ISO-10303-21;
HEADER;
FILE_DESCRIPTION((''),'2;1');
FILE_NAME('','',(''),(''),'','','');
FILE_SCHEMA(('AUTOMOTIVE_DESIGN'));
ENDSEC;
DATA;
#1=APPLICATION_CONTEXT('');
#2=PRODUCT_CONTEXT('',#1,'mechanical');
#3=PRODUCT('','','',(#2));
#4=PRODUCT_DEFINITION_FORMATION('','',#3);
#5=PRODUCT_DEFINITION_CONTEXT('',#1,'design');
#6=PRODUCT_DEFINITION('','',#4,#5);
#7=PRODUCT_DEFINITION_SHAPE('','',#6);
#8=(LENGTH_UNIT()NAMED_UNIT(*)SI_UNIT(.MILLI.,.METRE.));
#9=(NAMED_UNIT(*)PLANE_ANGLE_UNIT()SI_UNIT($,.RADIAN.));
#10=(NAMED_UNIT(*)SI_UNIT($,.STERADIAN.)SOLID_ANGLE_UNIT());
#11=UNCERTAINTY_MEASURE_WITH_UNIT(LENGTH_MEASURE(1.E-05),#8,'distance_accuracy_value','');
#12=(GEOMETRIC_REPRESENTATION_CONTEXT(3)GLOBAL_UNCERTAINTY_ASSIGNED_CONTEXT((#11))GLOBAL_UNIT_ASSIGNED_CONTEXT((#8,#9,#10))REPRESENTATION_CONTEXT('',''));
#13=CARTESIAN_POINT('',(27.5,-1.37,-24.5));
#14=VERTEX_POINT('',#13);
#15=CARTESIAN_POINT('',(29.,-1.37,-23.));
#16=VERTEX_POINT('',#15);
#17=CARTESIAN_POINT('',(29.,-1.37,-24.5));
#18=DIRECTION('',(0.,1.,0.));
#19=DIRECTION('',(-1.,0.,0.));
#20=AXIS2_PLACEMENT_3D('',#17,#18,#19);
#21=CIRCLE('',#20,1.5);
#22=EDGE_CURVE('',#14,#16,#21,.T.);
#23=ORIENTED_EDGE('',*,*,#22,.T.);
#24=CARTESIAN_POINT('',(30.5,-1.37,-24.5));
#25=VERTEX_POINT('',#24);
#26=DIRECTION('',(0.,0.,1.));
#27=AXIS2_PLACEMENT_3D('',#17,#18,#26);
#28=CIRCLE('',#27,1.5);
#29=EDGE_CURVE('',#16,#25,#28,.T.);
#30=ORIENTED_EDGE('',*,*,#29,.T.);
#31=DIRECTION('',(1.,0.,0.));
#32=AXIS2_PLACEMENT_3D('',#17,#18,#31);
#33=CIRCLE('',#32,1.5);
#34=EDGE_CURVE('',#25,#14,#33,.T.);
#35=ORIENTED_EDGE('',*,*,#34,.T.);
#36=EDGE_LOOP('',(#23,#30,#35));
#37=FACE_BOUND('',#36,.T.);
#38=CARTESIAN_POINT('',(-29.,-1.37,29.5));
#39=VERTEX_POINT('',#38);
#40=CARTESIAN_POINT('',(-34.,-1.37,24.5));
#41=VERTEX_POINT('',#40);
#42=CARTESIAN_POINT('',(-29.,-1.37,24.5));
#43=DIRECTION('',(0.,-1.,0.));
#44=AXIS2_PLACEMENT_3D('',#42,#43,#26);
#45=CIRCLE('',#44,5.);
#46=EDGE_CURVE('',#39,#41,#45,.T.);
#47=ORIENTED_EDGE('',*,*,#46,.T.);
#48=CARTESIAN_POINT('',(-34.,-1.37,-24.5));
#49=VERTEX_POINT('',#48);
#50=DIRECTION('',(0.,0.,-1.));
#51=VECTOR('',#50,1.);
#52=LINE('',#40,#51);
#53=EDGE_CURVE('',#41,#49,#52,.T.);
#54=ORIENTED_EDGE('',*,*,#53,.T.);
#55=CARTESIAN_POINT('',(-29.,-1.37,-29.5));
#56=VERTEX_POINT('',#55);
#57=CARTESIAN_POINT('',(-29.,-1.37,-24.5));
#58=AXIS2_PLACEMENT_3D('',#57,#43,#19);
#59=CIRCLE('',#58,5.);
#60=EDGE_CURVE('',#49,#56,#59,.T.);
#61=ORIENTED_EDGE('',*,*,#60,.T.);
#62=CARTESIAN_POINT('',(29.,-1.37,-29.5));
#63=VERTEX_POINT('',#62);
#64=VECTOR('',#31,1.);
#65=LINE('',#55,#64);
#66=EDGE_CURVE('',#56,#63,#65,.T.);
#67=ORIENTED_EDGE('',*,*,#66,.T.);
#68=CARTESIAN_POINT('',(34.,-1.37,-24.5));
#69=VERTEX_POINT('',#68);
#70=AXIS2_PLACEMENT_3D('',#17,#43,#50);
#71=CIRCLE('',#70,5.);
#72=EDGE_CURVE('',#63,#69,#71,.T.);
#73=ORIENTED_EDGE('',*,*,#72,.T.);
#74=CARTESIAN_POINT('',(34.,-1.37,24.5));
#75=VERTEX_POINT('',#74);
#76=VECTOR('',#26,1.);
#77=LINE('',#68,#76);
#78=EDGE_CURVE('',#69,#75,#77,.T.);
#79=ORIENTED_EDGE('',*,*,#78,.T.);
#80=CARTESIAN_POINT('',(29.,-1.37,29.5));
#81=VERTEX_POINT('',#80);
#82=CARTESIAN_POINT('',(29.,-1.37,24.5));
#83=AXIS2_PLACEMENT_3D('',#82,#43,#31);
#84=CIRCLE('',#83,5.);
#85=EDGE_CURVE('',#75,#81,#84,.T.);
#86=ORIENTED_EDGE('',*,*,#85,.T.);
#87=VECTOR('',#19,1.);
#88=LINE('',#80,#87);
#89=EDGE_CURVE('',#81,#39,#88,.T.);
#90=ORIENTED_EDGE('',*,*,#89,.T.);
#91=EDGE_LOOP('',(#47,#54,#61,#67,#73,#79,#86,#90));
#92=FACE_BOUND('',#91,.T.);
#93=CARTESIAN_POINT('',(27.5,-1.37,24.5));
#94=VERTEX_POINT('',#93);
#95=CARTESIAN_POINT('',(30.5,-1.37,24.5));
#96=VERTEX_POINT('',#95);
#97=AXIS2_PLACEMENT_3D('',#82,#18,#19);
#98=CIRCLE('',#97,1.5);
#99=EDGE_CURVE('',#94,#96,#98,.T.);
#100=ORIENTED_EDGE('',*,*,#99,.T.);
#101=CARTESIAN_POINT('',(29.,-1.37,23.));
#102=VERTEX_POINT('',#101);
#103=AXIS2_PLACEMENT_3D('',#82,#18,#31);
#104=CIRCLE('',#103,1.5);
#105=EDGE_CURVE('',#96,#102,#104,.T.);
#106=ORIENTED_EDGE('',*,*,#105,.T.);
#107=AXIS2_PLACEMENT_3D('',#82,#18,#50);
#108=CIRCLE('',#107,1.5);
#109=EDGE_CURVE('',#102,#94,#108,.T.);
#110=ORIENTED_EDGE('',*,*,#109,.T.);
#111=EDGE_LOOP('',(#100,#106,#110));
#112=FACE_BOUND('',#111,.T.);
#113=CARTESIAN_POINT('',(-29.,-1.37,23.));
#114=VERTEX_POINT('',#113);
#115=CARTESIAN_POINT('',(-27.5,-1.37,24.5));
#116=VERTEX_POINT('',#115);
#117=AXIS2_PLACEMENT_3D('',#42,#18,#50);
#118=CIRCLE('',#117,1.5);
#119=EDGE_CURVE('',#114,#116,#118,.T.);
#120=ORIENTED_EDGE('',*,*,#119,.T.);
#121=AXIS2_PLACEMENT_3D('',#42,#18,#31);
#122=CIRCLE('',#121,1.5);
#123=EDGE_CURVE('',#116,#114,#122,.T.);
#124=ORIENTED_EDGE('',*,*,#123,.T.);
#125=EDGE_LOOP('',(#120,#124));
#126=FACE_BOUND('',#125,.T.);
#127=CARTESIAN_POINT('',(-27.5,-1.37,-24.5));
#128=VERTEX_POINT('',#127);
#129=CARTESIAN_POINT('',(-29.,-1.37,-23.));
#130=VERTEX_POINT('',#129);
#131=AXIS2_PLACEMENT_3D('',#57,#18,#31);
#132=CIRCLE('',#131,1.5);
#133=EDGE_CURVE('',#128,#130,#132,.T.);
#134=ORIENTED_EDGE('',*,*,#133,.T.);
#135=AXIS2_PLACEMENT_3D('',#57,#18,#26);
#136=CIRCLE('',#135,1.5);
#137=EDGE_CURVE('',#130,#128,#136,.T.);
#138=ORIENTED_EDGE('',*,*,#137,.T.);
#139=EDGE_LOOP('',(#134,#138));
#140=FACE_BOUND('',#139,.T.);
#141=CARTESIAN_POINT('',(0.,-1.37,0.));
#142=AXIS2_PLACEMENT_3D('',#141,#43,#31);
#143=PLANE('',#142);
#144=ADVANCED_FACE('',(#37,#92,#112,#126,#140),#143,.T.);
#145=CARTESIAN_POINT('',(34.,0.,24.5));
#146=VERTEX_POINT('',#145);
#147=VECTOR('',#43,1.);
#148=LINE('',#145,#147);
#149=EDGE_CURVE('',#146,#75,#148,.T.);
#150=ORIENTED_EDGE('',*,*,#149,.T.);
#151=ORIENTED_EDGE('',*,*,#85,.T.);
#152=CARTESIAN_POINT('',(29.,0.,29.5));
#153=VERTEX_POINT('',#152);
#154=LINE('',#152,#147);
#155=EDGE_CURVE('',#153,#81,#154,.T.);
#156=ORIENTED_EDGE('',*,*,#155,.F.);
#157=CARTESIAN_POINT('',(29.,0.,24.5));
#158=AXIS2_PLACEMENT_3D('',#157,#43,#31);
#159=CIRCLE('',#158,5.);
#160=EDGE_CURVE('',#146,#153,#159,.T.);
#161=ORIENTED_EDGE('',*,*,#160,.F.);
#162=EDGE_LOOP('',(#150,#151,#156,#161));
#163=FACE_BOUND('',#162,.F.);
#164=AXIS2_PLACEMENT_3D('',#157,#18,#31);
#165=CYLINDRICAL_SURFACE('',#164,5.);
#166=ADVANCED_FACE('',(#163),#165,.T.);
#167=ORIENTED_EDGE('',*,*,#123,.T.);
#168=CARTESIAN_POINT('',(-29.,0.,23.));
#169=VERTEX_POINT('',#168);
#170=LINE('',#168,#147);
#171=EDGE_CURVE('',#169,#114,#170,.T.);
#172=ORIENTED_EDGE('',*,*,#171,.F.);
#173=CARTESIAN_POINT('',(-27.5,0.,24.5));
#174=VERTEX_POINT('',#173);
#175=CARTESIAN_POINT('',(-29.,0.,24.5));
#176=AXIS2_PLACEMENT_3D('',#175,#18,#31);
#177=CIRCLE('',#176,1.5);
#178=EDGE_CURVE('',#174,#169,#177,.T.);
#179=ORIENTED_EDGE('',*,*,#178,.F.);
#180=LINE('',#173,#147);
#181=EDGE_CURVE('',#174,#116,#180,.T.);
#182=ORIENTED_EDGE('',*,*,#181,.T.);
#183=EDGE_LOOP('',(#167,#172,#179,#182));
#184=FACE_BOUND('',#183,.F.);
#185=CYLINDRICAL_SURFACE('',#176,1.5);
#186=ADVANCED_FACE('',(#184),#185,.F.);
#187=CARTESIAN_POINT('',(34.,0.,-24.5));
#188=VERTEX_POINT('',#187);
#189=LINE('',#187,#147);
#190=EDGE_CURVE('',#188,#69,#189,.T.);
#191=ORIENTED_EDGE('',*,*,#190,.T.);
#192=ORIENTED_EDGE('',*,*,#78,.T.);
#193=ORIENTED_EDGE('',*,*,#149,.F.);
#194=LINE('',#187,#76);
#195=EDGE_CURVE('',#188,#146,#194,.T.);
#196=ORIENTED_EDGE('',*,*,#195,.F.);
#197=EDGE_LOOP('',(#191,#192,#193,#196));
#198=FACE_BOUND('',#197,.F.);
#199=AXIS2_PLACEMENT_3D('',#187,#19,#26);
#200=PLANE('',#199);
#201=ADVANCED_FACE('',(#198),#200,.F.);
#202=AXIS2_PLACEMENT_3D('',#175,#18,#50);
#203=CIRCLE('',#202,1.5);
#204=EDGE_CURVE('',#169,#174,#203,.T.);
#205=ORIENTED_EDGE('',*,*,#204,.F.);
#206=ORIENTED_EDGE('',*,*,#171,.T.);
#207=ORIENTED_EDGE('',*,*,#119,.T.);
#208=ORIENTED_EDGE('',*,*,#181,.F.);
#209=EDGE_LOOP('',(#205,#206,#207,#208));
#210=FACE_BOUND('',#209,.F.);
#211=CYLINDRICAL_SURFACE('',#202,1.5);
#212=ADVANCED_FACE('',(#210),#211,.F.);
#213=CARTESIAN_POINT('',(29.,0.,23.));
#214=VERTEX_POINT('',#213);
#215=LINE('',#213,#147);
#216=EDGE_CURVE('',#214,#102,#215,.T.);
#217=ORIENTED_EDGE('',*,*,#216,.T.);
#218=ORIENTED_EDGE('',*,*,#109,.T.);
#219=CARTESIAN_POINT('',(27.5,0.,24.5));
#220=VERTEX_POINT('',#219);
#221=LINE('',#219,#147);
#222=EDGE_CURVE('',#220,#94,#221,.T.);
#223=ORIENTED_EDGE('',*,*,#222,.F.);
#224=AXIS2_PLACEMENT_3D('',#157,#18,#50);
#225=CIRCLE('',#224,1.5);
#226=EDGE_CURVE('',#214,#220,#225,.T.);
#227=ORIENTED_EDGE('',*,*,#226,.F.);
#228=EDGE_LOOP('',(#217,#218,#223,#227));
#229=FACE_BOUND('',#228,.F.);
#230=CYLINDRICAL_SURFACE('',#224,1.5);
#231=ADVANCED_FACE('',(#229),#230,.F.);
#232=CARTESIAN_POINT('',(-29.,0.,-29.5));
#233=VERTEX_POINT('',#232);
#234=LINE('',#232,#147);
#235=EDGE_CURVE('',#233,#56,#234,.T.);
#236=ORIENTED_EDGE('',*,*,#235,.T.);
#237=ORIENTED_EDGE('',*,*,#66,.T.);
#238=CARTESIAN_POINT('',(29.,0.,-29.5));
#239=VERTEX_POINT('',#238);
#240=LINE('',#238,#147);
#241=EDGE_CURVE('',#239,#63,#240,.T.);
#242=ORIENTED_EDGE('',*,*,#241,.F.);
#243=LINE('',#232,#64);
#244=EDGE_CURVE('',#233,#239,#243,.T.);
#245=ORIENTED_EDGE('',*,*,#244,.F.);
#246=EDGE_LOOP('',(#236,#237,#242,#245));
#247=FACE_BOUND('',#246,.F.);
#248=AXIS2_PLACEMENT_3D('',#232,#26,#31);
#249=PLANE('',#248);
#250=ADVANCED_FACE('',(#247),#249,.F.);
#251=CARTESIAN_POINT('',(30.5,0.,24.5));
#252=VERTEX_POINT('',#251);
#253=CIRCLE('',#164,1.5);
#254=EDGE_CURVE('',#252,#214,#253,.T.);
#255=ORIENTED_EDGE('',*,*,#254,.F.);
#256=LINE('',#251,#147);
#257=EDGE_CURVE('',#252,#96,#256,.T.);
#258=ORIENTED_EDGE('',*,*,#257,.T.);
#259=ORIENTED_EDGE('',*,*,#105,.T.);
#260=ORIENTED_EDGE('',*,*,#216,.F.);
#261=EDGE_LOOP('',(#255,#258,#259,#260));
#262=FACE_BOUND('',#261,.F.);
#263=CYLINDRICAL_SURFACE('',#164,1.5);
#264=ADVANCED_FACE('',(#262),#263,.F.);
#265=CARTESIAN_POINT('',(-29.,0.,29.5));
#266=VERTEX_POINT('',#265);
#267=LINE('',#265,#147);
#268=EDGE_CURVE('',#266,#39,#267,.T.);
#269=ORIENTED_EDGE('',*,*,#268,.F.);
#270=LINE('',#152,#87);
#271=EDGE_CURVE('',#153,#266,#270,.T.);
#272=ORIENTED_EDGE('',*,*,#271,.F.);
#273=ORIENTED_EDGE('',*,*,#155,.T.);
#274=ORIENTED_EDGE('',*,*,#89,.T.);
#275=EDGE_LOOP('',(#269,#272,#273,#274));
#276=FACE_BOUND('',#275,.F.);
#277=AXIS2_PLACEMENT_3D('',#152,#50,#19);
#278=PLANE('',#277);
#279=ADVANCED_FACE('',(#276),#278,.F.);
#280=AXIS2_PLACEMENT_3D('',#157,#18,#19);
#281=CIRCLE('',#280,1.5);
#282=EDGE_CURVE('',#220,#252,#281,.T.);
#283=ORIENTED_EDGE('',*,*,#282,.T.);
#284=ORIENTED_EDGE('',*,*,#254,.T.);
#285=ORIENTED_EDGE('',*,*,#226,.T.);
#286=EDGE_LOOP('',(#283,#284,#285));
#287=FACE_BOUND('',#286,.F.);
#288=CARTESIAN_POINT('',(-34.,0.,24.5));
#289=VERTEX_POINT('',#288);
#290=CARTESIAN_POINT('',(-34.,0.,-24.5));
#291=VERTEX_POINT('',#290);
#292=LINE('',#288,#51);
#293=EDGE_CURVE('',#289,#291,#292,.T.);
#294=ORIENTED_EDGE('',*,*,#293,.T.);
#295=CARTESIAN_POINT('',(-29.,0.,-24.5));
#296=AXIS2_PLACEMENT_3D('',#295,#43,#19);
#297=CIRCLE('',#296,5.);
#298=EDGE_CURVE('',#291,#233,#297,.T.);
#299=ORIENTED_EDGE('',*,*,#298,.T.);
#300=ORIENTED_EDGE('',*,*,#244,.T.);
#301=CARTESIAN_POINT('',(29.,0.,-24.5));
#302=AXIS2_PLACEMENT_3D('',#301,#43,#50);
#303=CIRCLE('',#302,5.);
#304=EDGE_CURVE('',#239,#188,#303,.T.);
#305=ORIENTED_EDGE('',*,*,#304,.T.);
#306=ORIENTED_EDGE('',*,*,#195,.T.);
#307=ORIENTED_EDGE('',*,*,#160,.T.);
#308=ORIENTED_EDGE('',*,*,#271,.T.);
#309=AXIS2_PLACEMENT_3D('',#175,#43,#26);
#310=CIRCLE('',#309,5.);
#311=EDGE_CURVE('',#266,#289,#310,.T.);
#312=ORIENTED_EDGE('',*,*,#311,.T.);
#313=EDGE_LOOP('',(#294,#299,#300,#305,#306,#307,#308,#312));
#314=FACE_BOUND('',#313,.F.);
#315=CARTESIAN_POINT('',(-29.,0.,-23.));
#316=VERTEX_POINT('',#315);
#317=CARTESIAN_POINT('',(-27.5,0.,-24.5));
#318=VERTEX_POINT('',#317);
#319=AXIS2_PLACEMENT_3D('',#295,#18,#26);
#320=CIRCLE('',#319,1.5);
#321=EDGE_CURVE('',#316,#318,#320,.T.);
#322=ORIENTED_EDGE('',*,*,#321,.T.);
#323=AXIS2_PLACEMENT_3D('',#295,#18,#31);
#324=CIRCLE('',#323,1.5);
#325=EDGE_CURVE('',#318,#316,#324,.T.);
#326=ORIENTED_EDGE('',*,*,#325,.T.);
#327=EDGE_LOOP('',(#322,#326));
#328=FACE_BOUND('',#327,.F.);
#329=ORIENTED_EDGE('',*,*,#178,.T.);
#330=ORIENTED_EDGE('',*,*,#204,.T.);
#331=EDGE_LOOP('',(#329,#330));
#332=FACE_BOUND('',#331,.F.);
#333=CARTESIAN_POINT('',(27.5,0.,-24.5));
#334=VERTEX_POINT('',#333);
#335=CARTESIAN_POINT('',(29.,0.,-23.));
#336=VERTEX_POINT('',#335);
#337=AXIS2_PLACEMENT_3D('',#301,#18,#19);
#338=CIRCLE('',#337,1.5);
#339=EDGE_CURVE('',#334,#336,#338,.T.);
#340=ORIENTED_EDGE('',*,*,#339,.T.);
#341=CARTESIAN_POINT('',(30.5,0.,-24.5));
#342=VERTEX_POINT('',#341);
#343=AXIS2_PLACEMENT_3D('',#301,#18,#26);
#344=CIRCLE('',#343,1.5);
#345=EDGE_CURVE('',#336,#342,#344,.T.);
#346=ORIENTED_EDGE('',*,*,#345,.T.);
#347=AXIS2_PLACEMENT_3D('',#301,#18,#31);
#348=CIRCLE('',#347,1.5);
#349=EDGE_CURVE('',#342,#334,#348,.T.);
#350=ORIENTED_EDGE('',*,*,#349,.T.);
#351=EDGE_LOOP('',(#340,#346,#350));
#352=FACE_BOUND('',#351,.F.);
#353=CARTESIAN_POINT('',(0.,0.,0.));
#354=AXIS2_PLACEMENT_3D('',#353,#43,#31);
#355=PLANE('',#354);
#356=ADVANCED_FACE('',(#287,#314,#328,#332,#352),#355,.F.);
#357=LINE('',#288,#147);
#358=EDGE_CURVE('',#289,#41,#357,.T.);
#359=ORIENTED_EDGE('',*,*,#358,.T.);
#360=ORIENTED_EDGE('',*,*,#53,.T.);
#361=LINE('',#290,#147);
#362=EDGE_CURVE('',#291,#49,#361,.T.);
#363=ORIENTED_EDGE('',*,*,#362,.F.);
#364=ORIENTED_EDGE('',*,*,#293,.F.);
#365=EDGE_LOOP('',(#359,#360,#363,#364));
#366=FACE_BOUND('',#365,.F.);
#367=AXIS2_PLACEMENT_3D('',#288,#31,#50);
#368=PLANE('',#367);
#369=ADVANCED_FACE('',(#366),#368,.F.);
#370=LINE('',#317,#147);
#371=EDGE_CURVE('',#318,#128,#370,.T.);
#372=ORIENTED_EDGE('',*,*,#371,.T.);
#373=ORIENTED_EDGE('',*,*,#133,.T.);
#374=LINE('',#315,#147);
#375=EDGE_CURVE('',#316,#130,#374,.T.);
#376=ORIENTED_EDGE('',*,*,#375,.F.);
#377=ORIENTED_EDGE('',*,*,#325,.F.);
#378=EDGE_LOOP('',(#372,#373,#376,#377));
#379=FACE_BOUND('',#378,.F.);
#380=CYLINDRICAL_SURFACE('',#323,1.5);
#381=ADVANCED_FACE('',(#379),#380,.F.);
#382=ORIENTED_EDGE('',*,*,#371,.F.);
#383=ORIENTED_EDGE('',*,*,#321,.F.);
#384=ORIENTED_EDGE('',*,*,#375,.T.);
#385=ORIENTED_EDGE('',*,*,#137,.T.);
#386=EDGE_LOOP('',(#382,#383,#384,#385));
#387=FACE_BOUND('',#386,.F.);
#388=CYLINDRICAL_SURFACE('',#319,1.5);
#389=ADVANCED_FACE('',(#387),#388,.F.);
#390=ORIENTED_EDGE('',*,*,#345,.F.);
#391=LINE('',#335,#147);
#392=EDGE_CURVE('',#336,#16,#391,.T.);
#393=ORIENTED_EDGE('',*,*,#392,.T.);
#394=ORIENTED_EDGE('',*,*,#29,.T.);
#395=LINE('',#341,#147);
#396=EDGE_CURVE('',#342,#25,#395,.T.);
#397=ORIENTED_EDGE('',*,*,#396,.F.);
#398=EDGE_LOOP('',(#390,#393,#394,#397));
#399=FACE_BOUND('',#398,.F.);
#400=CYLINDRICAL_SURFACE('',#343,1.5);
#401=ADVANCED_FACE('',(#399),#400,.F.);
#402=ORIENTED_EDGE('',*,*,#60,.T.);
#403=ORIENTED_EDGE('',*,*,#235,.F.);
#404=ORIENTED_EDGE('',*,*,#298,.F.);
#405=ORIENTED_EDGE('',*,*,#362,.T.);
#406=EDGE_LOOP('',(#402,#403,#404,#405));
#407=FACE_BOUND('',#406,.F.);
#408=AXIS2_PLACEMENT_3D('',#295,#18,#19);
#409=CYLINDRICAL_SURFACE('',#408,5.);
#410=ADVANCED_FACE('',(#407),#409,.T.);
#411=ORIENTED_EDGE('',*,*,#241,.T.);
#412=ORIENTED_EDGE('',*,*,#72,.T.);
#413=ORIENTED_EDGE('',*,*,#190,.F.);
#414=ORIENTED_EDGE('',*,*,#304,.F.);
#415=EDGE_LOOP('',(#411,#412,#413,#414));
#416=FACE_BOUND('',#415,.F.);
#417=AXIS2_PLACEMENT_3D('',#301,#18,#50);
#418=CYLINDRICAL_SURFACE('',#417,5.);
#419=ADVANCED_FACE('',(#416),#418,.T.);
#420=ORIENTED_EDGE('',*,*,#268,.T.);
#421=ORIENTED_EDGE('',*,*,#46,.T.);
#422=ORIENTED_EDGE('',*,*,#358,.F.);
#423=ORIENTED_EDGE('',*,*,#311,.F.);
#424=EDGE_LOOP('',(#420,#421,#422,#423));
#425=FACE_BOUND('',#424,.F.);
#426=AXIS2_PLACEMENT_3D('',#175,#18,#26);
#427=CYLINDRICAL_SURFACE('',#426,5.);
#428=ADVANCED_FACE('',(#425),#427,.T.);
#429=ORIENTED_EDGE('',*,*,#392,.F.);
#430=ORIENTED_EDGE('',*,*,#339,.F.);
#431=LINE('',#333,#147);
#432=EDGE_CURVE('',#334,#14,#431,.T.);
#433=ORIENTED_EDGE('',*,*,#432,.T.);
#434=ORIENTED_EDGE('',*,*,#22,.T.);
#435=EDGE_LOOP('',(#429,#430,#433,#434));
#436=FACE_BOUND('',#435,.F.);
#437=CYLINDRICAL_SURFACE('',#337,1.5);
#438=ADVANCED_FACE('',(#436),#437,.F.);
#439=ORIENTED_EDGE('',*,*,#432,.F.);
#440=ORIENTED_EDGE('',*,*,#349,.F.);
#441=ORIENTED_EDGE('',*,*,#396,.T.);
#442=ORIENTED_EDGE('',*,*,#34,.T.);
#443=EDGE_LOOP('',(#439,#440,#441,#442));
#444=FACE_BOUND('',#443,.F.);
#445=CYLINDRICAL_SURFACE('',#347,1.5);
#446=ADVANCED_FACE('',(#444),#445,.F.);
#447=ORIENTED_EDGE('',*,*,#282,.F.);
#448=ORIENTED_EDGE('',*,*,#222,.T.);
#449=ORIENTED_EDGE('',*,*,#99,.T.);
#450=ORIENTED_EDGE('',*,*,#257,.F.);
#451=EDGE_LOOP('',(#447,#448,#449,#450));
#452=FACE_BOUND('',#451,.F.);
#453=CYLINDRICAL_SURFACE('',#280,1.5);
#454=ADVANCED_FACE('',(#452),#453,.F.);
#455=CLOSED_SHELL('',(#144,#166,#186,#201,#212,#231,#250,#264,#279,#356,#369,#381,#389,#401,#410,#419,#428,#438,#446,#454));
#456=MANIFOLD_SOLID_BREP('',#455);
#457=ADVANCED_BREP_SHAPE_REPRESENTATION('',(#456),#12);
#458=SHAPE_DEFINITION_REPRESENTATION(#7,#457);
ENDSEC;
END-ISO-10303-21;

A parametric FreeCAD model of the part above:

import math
import FreeCAD as App
import Part
import Sketcher
from FreeCAD import Vector

doc = App.newDocument("Part")
params = doc.addObject("Spreadsheet::Sheet", "Params")
for row, (alias, value) in enumerate([
    ("sketch1_radius", "5 mm"),
    ("sketch1_radius2", "1.5 mm"),
    ("sketch1_width", "58 mm"),
    ("sketch1_height", "49 mm"),
    ("pad1_length", "1.37 mm"),
], start=1):
    params.set(f"A{row}", alias)
    params.set(f"B{row}", "=" + value)
    params.setAlias(f"B{row}", alias)

body = doc.addObject("PartDesign::Body", "Body")

sketch1 = body.newObject("Sketcher::SketchObject", "Sketch")
sketch1.AttachmentSupport = (doc.getObject("XZ_Plane"), [""])
sketch1.MapMode = "FlatFace"
sketch1.addGeometry([
    Part.LineSegment(Vector(29, 29.5, 0), Vector(-29, 29.5, 0)),
    Part.ArcOfCircle(Part.Circle(Vector(-29, 24.5, 0), Vector(0, 0, 1), 5), math.radians(90), math.radians(180)),
    Part.LineSegment(Vector(-34, 24.5, 0), Vector(-34, -24.5, 0)),
    Part.ArcOfCircle(Part.Circle(Vector(-29, -24.5, 0), Vector(0, 0, 1), 5), math.radians(180), math.radians(270)),
    Part.LineSegment(Vector(-29, -29.5, 0), Vector(29, -29.5, 0)),
    Part.ArcOfCircle(Part.Circle(Vector(29, -24.5, 0), Vector(0, 0, 1), 5), math.radians(-90), math.radians(0)),
    Part.LineSegment(Vector(34, -24.5, 0), Vector(34, 24.5, 0)),
    Part.ArcOfCircle(Part.Circle(Vector(29, 24.5, 0), Vector(0, 0, 1), 5), math.radians(0), math.radians(90)),
    Part.ArcOfCircle(Part.Circle(Vector(-29, -24.5, 0), Vector(0, 0, 1), 1.5), math.radians(90), math.radians(360)),
    Part.ArcOfCircle(Part.Circle(Vector(-29, -24.5, 0), Vector(0, 0, 1), 1.5), math.radians(0), math.radians(90)),
    Part.ArcOfCircle(Part.Circle(Vector(29, -24.5, 0), Vector(0, 0, 1), 1.5), math.radians(180), math.radians(360)),
    Part.ArcOfCircle(Part.Circle(Vector(29, -24.5, 0), Vector(0, 0, 1), 1.5), math.radians(90), math.radians(180)),
    Part.ArcOfCircle(Part.Circle(Vector(29, -24.5, 0), Vector(0, 0, 1), 1.5), math.radians(0), math.radians(90)),
    Part.ArcOfCircle(Part.Circle(Vector(29, 24.5, 0), Vector(0, 0, 1), 1.5), math.radians(-90), math.radians(0)),
    Part.ArcOfCircle(Part.Circle(Vector(29, 24.5, 0), Vector(0, 0, 1), 1.5), math.radians(180), math.radians(270)),
    Part.ArcOfCircle(Part.Circle(Vector(29, 24.5, 0), Vector(0, 0, 1), 1.5), math.radians(0), math.radians(180)),
    Part.ArcOfCircle(Part.Circle(Vector(-29, 24.5, 0), Vector(0, 0, 1), 1.5), math.radians(0), math.radians(270)),
    Part.ArcOfCircle(Part.Circle(Vector(-29, 24.5, 0), Vector(0, 0, 1), 1.5), math.radians(-90), math.radians(0)),
], False)
sketch1.addConstraint([
    Sketcher.Constraint("Tangent", 0, 2, 1, 1),
    Sketcher.Constraint("Tangent", 1, 2, 2, 1),
    Sketcher.Constraint("Tangent", 2, 2, 3, 1),
    Sketcher.Constraint("Tangent", 3, 2, 4, 1),
    Sketcher.Constraint("Tangent", 4, 2, 5, 1),
    Sketcher.Constraint("Tangent", 5, 2, 6, 1),
    Sketcher.Constraint("Tangent", 6, 2, 7, 1),
    Sketcher.Constraint("Tangent", 7, 2, 0, 1),
    Sketcher.Constraint("Tangent", 8, 1, 9, 2),
    Sketcher.Constraint("Coincident", 9, 1, 8, 2),
    Sketcher.Constraint("Tangent", 10, 1, 11, 2),
    Sketcher.Constraint("Tangent", 11, 1, 12, 2),
    Sketcher.Constraint("Tangent", 12, 1, 10, 2),
    Sketcher.Constraint("Tangent", 13, 1, 14, 2),
    Sketcher.Constraint("Tangent", 14, 1, 15, 2),
    Sketcher.Constraint("Tangent", 15, 1, 13, 2),
    Sketcher.Constraint("Tangent", 16, 1, 17, 2),
    Sketcher.Constraint("Coincident", 17, 1, 16, 2),
    Sketcher.Constraint("Horizontal", 0),
    Sketcher.Constraint("Vertical", 2),
    Sketcher.Constraint("Horizontal", 4),
    Sketcher.Constraint("Vertical", 6),
    Sketcher.Constraint("Coincident", 8, 3, 3, 3),
    Sketcher.Constraint("Coincident", 10, 3, 5, 3),
    Sketcher.Constraint("Coincident", 13, 3, 7, 3),
    Sketcher.Constraint("Coincident", 16, 3, 1, 3),
    Sketcher.Constraint("Equal", 1, 3),
    Sketcher.Constraint("Equal", 3, 5),
    Sketcher.Constraint("Equal", 5, 7),
    Sketcher.Constraint("Equal", 9, 10),
    Sketcher.Constraint("Equal", 12, 13),
    Sketcher.Constraint("Equal", 15, 16),
    Sketcher.Constraint("Symmetric", 1, 3, 5, 3, -1, 1),
    Sketcher.Constraint("Horizontal", 5, 2, 9, 1),
    Sketcher.Constraint("Horizontal", 9, 1, 10, 1),
    Sketcher.Constraint("Horizontal", 10, 1, 12, 1),
    Sketcher.Constraint("Horizontal", 6, 2, 14, 1),
    Sketcher.Constraint("Horizontal", 14, 1, 15, 1),
    Sketcher.Constraint("Horizontal", 15, 1, 16, 1),
    Sketcher.Constraint("Vertical", 3, 2, 8, 1),
    Sketcher.Constraint("Vertical", 7, 2, 11, 1),
    Sketcher.Constraint("Vertical", 11, 1, 13, 1),
    Sketcher.Constraint("Vertical", 8, 1, 17, 1),
    Sketcher.Constraint("Radius", 1, 5.0),
    Sketcher.Constraint("Radius", 8, 1.5),
    Sketcher.Constraint("DistanceX", 0, 2, 0, 1, 58.0),
    Sketcher.Constraint("DistanceY", 2, 2, 2, 1, 49.0),
])
sketch1.setExpression("Constraints[43]", "Params.sketch1_radius")
sketch1.setExpression("Constraints[44]", "Params.sketch1_radius2")
sketch1.setExpression("Constraints[45]", "Params.sketch1_width")
sketch1.setExpression("Constraints[46]", "Params.sketch1_height")
pad1 = body.newObject("PartDesign::Pad", "Pad")
pad1.Profile = sketch1
pad1.setExpression("Length", "Params.pad1_length")

doc.recompute()
